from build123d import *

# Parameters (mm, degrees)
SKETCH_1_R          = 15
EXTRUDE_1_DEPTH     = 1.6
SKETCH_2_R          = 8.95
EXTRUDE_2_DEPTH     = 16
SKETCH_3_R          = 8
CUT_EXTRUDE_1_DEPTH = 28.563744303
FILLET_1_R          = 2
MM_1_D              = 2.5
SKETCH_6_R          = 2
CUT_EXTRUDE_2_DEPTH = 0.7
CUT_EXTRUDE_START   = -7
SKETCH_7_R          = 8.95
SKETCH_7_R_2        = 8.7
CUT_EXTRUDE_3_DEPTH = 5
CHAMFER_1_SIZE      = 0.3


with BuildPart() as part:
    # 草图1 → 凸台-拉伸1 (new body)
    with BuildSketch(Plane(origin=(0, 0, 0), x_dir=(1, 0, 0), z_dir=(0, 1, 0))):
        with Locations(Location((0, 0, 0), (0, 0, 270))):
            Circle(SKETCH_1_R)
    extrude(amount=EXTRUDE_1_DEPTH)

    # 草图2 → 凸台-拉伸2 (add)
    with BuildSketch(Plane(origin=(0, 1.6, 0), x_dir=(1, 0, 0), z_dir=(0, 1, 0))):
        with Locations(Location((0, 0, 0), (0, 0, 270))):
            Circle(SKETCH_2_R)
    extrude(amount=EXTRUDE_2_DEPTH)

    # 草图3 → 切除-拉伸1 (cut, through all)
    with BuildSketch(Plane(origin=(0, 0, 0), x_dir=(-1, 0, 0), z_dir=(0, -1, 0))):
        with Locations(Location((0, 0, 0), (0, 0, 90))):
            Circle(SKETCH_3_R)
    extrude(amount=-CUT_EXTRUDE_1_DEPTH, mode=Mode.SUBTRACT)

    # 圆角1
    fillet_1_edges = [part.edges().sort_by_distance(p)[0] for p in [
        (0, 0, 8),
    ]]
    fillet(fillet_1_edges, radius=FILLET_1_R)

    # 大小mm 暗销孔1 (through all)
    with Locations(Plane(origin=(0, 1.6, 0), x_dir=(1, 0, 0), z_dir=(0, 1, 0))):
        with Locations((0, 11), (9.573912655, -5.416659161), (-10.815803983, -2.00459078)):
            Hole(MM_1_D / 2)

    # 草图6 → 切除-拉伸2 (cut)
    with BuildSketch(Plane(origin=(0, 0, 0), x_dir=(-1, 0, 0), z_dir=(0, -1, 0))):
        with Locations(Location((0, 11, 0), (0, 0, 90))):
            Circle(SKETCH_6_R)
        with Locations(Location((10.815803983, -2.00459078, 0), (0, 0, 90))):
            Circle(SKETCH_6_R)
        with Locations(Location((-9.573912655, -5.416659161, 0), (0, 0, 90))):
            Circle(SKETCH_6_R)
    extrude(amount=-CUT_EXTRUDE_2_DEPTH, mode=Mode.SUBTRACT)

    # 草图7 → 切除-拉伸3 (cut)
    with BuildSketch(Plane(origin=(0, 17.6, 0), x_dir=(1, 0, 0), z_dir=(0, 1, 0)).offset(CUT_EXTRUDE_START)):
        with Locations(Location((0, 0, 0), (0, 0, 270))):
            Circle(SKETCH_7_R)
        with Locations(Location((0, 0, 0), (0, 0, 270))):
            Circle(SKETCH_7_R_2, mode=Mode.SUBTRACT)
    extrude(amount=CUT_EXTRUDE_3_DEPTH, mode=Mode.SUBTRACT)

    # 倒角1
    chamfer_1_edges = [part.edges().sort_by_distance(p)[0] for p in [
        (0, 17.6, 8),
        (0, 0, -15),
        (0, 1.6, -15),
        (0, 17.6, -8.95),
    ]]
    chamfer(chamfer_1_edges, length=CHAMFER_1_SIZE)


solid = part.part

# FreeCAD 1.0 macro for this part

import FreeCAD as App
import Part
import Sketcher
Q = App.Units.Quantity


def edges_at(feature, points):
    """Names of the edges that pass closest to the given points."""
    edges = feature.Shape.Edges
    near = lambda p: min(range(len(edges)), key=lambda i: edges[i].distToShape(Part.Vertex(*p))[0])
    return sorted({f"Edge{near(p) + 1}" for p in points})

doc = App.newDocument("Part")
body = doc.addObject("PartDesign::Body", "Body")

sketch1 = doc.addObject("Sketcher::SketchObject", "Sketch")
body.addObject(sketch1)
sketch1.AttachmentSupport = (doc.XZ_Plane, [""])
sketch1.MapMode = "FlatFace"
sketch1.addGeometry(Part.Circle(App.Vector(0, 0, 0), App.Vector(0, 0, 1), 15), False)
sketch1.addConstraint([
    Sketcher.Constraint("Coincident", 0, 3, -1, 1),
    Sketcher.Constraint("Diameter", 0, Q("30 mm")),
])
pad1 = doc.addObject("PartDesign::Pad", "Pad")
body.addObject(pad1)
pad1.Profile = sketch1
pad1.Length = 1.6
pad1.Reversed = True

sketch2 = doc.addObject("Sketcher::SketchObject", "Sketch001")
body.addObject(sketch2)
sketch2.AttachmentSupport = (doc.XZ_Plane, [""])
sketch2.MapMode = "FlatFace"
sketch2.AttachmentOffset = App.Placement(App.Vector(0, 0, -1.6), App.Rotation())
sketch2.addGeometry(Part.Circle(App.Vector(0, 0, 0), App.Vector(0, 0, 1), 8.95), False)
sketch2.addConstraint([
    Sketcher.Constraint("Coincident", 0, 3, -1, 1),
    Sketcher.Constraint("Diameter", 0, Q("17.9 mm")),
])
pad2 = doc.addObject("PartDesign::Pad", "Pad001")
body.addObject(pad2)
pad2.Profile = sketch2
pad2.Length = 16
pad2.Reversed = True

sketch3 = doc.addObject("Sketcher::SketchObject", "Sketch002")
body.addObject(sketch3)
sketch3.AttachmentSupport = (doc.XZ_Plane, [""])
sketch3.MapMode = "FlatFace"
sketch3.addGeometry(Part.Circle(App.Vector(0, 0, 0), App.Vector(0, 0, 1), 8), False)
sketch3.addConstraint([
    Sketcher.Constraint("Coincident", 0, 3, -1, 1),
    Sketcher.Constraint("Diameter", 0, Q("16 mm")),
])
pocket1 = doc.addObject("PartDesign::Pocket", "Pocket")
body.addObject(pocket1)
pocket1.Profile = sketch3
pocket1.Type = "ThroughAll"
doc.recompute()

fillet = doc.addObject("PartDesign::Fillet", "Fillet")
body.addObject(fillet)
fillet.Base = (pocket1, edges_at(pocket1, [(0, 0, 8)]))
fillet.Radius = 2

sketch4 = doc.addObject("Sketcher::SketchObject", "Sketch003")
body.addObject(sketch4)
sketch4.AttachmentSupport = (doc.XZ_Plane, [""])
sketch4.MapMode = "FlatFace"
sketch4.AttachmentOffset = App.Placement(App.Vector(0, 0, -1.6), App.Rotation())
sketch4.addGeometry([
    Part.Circle(App.Vector(0, -11, 0), App.Vector(0, 0, 1), 1.25),
    Part.Circle(App.Vector(9.573913, 5.416659, 0), App.Vector(0, 0, 1), 1.25),
    Part.Circle(App.Vector(-10.815804, 2.004591, 0), App.Vector(0, 0, 1), 1.25),
], False)
sketch4.addConstraint([
    Sketcher.Constraint("Equal", 0, 1),
    Sketcher.Constraint("Equal", 1, 2),
    Sketcher.Constraint("PointOnObject", 0, 3, -2),
    Sketcher.Constraint("Diameter", 0, Q("2.5 mm")),
    Sketcher.Constraint("DistanceY", 0, 3, -1, 1, Q("11 mm")),
    Sketcher.Constraint("DistanceY", -1, 1, 1, 3, Q("5.416659 mm")),
    Sketcher.Constraint("DistanceY", -1, 1, 2, 3, Q("2.004591 mm")),
    Sketcher.Constraint("DistanceX", -1, 1, 1, 3, Q("9.573913 mm")),
    Sketcher.Constraint("DistanceX", 2, 3, -1, 1, Q("10.815804 mm")),
])
doc.recompute()
hole = doc.addObject("PartDesign::Hole", "Hole")
body.addObject(hole)
hole.Profile = sketch4
hole.ThreadType = "None"
hole.Diameter = 2.5
hole.DepthType = "ThroughAll"
hole.Reversed = True

sketch5 = doc.addObject("Sketcher::SketchObject", "Sketch004")
body.addObject(sketch5)
sketch5.AttachmentSupport = (doc.XZ_Plane, [""])
sketch5.MapMode = "FlatFace"
sketch5.addGeometry([
    Part.Circle(App.Vector(0, -11, 0), App.Vector(0, 0, 1), 2),
    Part.Circle(App.Vector(-10.815804, 2.004591, 0), App.Vector(0, 0, 1), 2),
    Part.Circle(App.Vector(9.573913, 5.416659, 0), App.Vector(0, 0, 1), 2),
], False)
sketch5.addConstraint([
    Sketcher.Constraint("Equal", 0, 1),
    Sketcher.Constraint("Equal", 1, 2),
    Sketcher.Constraint("PointOnObject", 0, 3, -2),
    Sketcher.Constraint("Diameter", 0, Q("4 mm")),
    Sketcher.Constraint("DistanceY", 0, 3, -1, 1, Q("11 mm")),
    Sketcher.Constraint("DistanceY", -1, 1, 1, 3, Q("2.004591 mm")),
    Sketcher.Constraint("DistanceY", -1, 1, 2, 3, Q("5.416659 mm")),
    Sketcher.Constraint("DistanceX", 1, 3, -1, 1, Q("10.815804 mm")),
    Sketcher.Constraint("DistanceX", -1, 1, 2, 3, Q("9.573913 mm")),
])
pocket2 = doc.addObject("PartDesign::Pocket", "Pocket001")
body.addObject(pocket2)
pocket2.Profile = sketch5
pocket2.Length = 0.7

sketch6 = doc.addObject("Sketcher::SketchObject", "Sketch005")
body.addObject(sketch6)
sketch6.AttachmentSupport = (doc.XZ_Plane, [""])
sketch6.MapMode = "FlatFace"
sketch6.AttachmentOffset = App.Placement(App.Vector(0, 0, -10.6), App.Rotation())
sketch6.addGeometry([
    Part.Circle(App.Vector(0, 0, 0), App.Vector(0, 0, 1), 8.95),
    Part.Circle(App.Vector(0, 0, 0), App.Vector(0, 0, 1), 8.7),
], False)
sketch6.addConstraint([
    Sketcher.Constraint("Coincident", 0, 3, -1, 1),
    Sketcher.Constraint("Coincident", 1, 3, -1, 1),
    Sketcher.Constraint("Diameter", 0, Q("17.9 mm")),
    Sketcher.Constraint("Diameter", 1, Q("17.4 mm")),
])
pocket3 = doc.addObject("PartDesign::Pocket", "Pocket002")
body.addObject(pocket3)
pocket3.Profile = sketch6
pocket3.Length = 5
doc.recompute()

chamfer = doc.addObject("PartDesign::Chamfer", "Chamfer")
body.addObject(chamfer)
chamfer.Base = (pocket3, edges_at(pocket3, [
    (0, 17.6, 8),
    (0, 0, -15),
    (0, 1.6, -15),
    (0, 17.6, -8.95),
]))
chamfer.Size = 0.3

doc.recompute()
